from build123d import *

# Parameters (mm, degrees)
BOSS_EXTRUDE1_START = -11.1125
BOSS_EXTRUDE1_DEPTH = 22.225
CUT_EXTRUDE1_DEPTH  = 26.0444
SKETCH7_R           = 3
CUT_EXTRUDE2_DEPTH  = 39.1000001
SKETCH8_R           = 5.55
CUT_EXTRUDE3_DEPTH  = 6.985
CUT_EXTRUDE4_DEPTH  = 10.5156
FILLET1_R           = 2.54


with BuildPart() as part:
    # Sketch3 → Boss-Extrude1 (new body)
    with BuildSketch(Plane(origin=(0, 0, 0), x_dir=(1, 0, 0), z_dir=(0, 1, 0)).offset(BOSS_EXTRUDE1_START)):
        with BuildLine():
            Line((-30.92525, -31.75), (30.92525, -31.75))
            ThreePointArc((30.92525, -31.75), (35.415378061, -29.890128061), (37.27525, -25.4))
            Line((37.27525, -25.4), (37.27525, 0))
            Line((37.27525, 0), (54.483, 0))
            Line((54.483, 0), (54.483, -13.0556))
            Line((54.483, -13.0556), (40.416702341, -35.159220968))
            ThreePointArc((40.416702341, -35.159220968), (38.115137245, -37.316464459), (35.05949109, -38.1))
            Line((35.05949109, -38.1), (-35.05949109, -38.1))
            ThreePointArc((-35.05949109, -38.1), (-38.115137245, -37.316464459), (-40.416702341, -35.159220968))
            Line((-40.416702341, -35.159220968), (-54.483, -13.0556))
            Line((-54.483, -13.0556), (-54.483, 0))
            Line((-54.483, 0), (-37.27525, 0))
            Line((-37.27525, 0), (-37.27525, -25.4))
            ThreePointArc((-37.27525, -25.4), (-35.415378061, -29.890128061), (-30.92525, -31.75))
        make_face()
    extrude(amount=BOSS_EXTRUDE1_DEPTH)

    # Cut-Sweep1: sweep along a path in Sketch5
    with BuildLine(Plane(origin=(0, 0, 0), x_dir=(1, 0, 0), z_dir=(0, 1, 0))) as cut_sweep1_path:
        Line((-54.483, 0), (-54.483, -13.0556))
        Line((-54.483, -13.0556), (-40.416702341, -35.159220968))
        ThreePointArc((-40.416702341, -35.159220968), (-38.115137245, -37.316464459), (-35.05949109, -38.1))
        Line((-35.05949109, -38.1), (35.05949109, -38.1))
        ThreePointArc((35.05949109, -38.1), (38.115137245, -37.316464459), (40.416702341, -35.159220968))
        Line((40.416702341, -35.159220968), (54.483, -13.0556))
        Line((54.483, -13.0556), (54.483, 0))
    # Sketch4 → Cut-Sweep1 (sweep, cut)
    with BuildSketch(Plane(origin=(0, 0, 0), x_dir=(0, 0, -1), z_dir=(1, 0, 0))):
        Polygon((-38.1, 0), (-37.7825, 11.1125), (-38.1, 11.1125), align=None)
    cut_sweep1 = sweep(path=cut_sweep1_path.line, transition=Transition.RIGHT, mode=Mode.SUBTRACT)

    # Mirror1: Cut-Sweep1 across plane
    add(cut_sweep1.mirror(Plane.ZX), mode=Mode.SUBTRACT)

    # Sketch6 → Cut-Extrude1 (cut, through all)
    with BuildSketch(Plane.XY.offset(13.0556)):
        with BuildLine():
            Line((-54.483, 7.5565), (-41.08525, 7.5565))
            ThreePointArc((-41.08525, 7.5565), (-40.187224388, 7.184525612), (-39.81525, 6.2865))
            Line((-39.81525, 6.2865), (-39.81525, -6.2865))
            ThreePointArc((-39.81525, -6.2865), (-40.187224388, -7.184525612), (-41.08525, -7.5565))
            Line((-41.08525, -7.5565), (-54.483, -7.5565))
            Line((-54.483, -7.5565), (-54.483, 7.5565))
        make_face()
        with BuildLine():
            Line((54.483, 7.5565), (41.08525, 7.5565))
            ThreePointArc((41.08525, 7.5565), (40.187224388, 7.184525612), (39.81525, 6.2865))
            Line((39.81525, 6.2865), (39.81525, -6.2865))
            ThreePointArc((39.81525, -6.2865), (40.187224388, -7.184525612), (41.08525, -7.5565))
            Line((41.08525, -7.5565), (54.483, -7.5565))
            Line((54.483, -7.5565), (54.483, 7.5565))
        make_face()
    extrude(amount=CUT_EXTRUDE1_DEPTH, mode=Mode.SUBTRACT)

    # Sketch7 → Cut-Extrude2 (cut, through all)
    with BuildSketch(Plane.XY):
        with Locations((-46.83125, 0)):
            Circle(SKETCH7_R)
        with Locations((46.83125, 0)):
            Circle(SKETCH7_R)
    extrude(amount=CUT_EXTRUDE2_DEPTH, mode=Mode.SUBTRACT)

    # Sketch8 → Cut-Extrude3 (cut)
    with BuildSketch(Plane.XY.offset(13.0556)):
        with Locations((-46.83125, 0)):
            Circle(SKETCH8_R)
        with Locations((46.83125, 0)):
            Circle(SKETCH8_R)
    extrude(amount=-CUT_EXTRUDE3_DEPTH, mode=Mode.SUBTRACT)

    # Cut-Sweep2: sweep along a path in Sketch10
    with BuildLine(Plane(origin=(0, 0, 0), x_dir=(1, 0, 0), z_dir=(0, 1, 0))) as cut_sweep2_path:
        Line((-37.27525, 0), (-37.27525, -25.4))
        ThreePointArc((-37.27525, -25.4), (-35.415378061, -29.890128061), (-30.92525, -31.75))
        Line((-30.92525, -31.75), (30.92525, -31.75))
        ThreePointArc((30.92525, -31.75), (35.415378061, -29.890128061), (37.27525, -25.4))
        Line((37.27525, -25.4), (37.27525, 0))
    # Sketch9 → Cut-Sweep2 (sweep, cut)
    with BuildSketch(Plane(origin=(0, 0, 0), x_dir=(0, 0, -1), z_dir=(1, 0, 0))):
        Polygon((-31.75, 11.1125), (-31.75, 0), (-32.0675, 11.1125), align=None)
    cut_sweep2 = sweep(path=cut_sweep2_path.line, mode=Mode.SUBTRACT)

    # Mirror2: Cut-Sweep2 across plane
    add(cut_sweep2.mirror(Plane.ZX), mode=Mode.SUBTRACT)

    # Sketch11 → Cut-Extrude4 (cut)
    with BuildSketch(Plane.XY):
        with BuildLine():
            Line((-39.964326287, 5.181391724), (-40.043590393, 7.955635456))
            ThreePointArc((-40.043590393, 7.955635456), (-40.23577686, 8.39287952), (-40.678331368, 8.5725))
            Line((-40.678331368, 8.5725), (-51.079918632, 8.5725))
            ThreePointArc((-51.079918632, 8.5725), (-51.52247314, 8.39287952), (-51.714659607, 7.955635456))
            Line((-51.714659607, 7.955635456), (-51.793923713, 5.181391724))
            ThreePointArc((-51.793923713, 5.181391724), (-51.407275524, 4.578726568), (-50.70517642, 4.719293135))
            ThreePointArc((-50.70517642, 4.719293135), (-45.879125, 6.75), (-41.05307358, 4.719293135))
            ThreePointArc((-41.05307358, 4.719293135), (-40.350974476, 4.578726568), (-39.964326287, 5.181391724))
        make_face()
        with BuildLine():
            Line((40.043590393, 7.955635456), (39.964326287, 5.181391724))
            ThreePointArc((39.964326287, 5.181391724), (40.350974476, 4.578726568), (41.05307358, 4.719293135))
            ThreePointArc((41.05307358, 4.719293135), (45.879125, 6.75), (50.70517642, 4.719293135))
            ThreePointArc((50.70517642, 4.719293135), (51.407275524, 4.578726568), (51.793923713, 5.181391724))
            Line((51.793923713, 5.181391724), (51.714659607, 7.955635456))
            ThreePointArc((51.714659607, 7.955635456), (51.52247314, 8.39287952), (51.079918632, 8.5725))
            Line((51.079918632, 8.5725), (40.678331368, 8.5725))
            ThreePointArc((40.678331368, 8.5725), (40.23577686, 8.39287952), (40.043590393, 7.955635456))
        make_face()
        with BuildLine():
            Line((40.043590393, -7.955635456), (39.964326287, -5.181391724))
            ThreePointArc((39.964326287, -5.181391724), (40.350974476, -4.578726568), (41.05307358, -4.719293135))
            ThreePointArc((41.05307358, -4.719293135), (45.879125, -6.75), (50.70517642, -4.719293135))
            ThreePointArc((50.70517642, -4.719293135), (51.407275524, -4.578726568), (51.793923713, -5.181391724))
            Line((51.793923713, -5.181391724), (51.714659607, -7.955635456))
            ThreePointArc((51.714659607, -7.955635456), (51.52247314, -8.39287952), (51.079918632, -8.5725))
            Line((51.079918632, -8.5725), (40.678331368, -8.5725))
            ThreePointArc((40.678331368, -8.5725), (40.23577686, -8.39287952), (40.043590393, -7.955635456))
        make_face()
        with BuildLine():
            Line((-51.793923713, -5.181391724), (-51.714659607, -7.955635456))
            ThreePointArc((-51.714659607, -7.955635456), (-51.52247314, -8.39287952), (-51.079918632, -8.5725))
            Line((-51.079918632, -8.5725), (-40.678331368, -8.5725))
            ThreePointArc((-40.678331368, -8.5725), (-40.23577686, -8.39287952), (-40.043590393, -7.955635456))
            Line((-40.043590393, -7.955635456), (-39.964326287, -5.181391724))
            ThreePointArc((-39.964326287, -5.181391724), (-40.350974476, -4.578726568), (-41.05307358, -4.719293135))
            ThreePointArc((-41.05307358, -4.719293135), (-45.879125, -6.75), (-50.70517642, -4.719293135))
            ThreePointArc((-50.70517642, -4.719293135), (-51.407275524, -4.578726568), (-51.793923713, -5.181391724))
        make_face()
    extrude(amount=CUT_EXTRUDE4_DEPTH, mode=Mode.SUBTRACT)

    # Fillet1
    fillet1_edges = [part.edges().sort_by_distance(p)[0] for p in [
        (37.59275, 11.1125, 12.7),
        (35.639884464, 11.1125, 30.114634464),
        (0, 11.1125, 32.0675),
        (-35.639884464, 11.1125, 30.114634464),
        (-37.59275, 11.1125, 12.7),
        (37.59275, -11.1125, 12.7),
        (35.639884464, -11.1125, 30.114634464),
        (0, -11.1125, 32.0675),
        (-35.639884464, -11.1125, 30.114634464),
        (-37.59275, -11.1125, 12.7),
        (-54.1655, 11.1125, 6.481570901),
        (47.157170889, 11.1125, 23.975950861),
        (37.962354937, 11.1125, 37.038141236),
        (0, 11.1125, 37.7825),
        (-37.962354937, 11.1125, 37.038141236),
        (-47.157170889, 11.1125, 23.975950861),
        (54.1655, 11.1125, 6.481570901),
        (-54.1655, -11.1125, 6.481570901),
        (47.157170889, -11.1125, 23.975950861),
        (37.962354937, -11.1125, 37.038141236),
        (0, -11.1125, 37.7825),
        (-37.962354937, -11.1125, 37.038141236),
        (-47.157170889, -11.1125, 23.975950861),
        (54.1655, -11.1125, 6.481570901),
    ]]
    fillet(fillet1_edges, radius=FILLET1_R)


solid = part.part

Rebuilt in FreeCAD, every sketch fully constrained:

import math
import FreeCAD as App
import Part
import Sketcher
from FreeCAD import Vector
Q = App.Units.Quantity


def edges_at(feature, points):
    """Names of the edges that pass closest to the given points."""
    edges = feature.Shape.Edges
    near = lambda p: min(range(len(edges)), key=lambda i: edges[i].distToShape(Part.Vertex(*p))[0])
    return sorted({f"Edge{near(p) + 1}" for p in points})


def add_polygon(sketch, points):
    """Adds a closed chain of lines whose ends are joined by coincident constraints."""
    first, n = sketch.GeometryCount, len(points)
    for a, b in zip(points, points[1:] + points[:1]):
        sketch.addGeometry(Part.LineSegment(App.Vector(*a, 0), App.Vector(*b, 0)), False)
    for i in range(n):
        sketch.addConstraint(Sketcher.Constraint("Coincident", first + i, 2, first + (i + 1) % n, 1))

doc = App.newDocument("Part")
params = doc.addObject("Spreadsheet::Sheet", "Params")
for row, (alias, value) in enumerate([
    ("sketch1_height", "1 in"),
    ("sketch1_radius", "0.25 in"),
    ("sketch1_height2", "0.514 in"),
    ("pad1_length", "0.875 in"),
    ("sketch2_width", "0.4375 in"),
    ("sketch3_radius", "0.25 in"),
    ("sketch3_height", "0.514 in"),
    ("sketch4_radius", "0.05 in"),
    ("sketch4_height", "0.595 in"),
    ("pocket3_length", "0.275 in"),
    ("sketch7_width", "0.4375 in"),
    ("sketch8_height", "1 in"),
    ("sketch8_radius", "0.25 in"),
    ("sketch9_radius", "0.025 in"),
    ("pocket4_length", "0.414 in"),
    ("fillet_radius", "0.1 in"),
], start=1):
    params.set(f"A{row}", alias)
    params.set(f"B{row}", "=" + value)
    params.setAlias(f"B{row}", alias)

body = doc.addObject("PartDesign::Body", "Body")

# Sketch on XZ plane
sketch1 = body.newObject("Sketcher::SketchObject", "Sketch")
sketch1.AttachmentSupport = (doc.getObject("XZ_Plane"), [""])
sketch1.MapMode = "FlatFace"
sketch1.AttachmentOffset = App.Placement(Vector(0, 0, 0.4375 * 25.4), App.Rotation())
sketch1.addGeometry([
    Part.LineSegment(Vector(31, 32, 0), Vector(-31, 32, 0)),  # 0
    Part.ArcOfCircle(Part.Circle(Vector(-31, 25, 0), Vector(0, 0, 1), 6), math.radians(90), math.radians(180)),  # 1
    Part.LineSegment(Vector(-37, 25, 0), Vector(-37, 0, 0)),  # 2
    Part.LineSegment(Vector(-37, 0, 0), Vector(-54, 0, 0)),  # 3
    Part.LineSegment(Vector(-54, 0, 0), Vector(-54, 13, 0)),  # 4
    Part.LineSegment(Vector(-54, 13, 0), Vector(-40, 35, 0)),  # 5
    Part.ArcOfCircle(Part.Circle(Vector(-35, 32, 0), Vector(0, 0, 1), 6), math.radians(90), math.radians(148)),  # 6
    Part.LineSegment(Vector(-35, 38, 0), Vector(35, 38, 0)),  # 7
    Part.ArcOfCircle(Part.Circle(Vector(35, 32, 0), Vector(0, 0, 1), 6), math.radians(32), math.radians(90)),  # 8
    Part.LineSegment(Vector(40, 35, 0), Vector(54, 13, 0)),  # 9
    Part.LineSegment(Vector(54, 13, 0), Vector(54, 0, 0)),  # 10
    Part.LineSegment(Vector(54, 0, 0), Vector(37, 0, 0)),  # 11
    Part.LineSegment(Vector(37, 0, 0), Vector(37, 25, 0)),  # 12
    Part.ArcOfCircle(Part.Circle(Vector(31, 25, 0), Vector(0, 0, 1), 6), math.radians(0), math.radians(90)),  # 13
], False)
sketch1.addConstraint([
    Sketcher.Constraint("Tangent", 0, 2, 1, 1),
    Sketcher.Constraint("Tangent", 1, 2, 2, 1),
    Sketcher.Constraint("Coincident", 2, 2, 3, 1),
    Sketcher.Constraint("Coincident", 3, 2, 4, 1),
    Sketcher.Constraint("Coincident", 4, 2, 5, 1),
    Sketcher.Constraint("Tangent", 5, 2, 6, 2),
    Sketcher.Constraint("Tangent", 6, 1, 7, 1),
    Sketcher.Constraint("Tangent", 7, 2, 8, 2),
    Sketcher.Constraint("Tangent", 8, 1, 9, 1),
    Sketcher.Constraint("Coincident", 9, 2, 10, 1),
    Sketcher.Constraint("Coincident", 10, 2, 11, 1),
    Sketcher.Constraint("Coincident", 11, 2, 12, 1),
    Sketcher.Constraint("Tangent", 12, 2, 13, 1),
    Sketcher.Constraint("Tangent", 13, 2, 0, 1),
    Sketcher.Constraint("Horizontal", 0),
    Sketcher.Constraint("Vertical", 2),
    Sketcher.Constraint("Horizontal", 3),
    Sketcher.Constraint("Vertical", 4),
    Sketcher.Constraint("Horizontal", 7),
    Sketcher.Constraint("Vertical", 10),
    Sketcher.Constraint("Horizontal", 11),
    Sketcher.Constraint("Vertical", 12),
    Sketcher.Constraint("Equal", 1, 6),
    Sketcher.Constraint("Equal", 6, 8),
    Sketcher.Constraint("Equal", 8, 13),
    Sketcher.Constraint("Symmetric", 3, 2, 10, 2, -1, 1),
    Sketcher.Constraint("Symmetric", 5, 2, 8, 1, -2),
    Sketcher.Constraint("Symmetric", 2, 2, 11, 2, -2),
    Sketcher.Constraint("Horizontal", 8, 3, 0, 2),
    Sketcher.Constraint("DistanceY", 2, 2, 2, 1, Q("1 in")),
    Sketcher.Constraint("Radius", 1, Q("0.25 in")),
    Sketcher.Constraint("DistanceY", 4, 1, 4, 2, Q("0.514 in")),
    Sketcher.Constraint("DistanceX", 3, 2, -1, 1, Q("2.145 in")),
    Sketcher.Constraint("DistanceX", 0, 2, 0, 1, Q("61.8505 mm")),
    Sketcher.Constraint("DistanceX", 7, 1, 7, 2, Q("70.118982 mm")),
])
sketch1.setExpression("Constraints[29]", "Params.sketch1_height")
sketch1.setExpression("Constraints[30]", "Params.sketch1_radius")
sketch1.setExpression("Constraints[31]", "Params.sketch1_height2")
pad1 = body.newObject("PartDesign::Pad", "Pad")
pad1.Profile = sketch1
pad1.setExpression("Length", "Params.pad1_length")
pad1.Reversed = True

# Sketch on YZ plane
sketch2 = body.newObject("Sketcher::SketchObject", "Sketch001")
sketch2.AttachmentSupport = (doc.getObject("YZ_Plane"), [""])
sketch2.MapMode = "FlatFace"
add_polygon(sketch2, [(0, 38.1), (11.11, 37.78), (11.11, 38.1)])  # lines 0-2
sketch2.addConstraint([
    Sketcher.Constraint("Vertical", 1),
    Sketcher.Constraint("Horizontal", 2),
    Sketcher.Constraint("PointOnObject", 2, 2, -2),
    Sketcher.Constraint("DistanceY", -1, 1, 1, 2, Q("1.5 in")),
    Sketcher.Constraint("DistanceX", 2, 2, 2, 1, Q("0.4375 in")),
    Sketcher.Constraint("DistanceY", 1, 1, 1, 2, Q("0.0125 in")),
])
sketch2.setExpression("Constraints[7]", "Params.sketch2_width")

# Sketch on XZ plane
sketch3 = body.newObject("Sketcher::SketchObject", "Sketch002")
sketch3.AttachmentSupport = (doc.getObject("XZ_Plane"), [""])
sketch3.MapMode = "FlatFace"
sketch3.addGeometry([
    Part.LineSegment(Vector(-54, 0, 0), Vector(-54, 13, 0)),  # 0
    Part.LineSegment(Vector(-54, 13, 0), Vector(-40, 35, 0)),  # 1
    Part.ArcOfCircle(Part.Circle(Vector(-35, 32, 0), Vector(0, 0, 1), 6), math.radians(90), math.radians(148)),  # 2
    Part.LineSegment(Vector(-35, 38, 0), Vector(35, 38, 0)),  # 3
    Part.ArcOfCircle(Part.Circle(Vector(35, 32, 0), Vector(0, 0, 1), 6), math.radians(32), math.radians(90)),  # 4
    Part.LineSegment(Vector(40, 35, 0), Vector(54, 13, 0)),  # 5
    Part.LineSegment(Vector(54, 13, 0), Vector(54, 0, 0)),  # 6
], False)
sketch3.addConstraint([
    Sketcher.Constraint("Coincident", 0, 2, 1, 1),
    Sketcher.Constraint("Tangent", 1, 2, 2, 2),
    Sketcher.Constraint("Tangent", 2, 1, 3, 1),
    Sketcher.Constraint("Tangent", 3, 2, 4, 2),
    Sketcher.Constraint("Tangent", 4, 1, 5, 1),
    Sketcher.Constraint("Coincident", 5, 2, 6, 1),
    Sketcher.Constraint("Vertical", 0),
    Sketcher.Constraint("Horizontal", 3),
    Sketcher.Constraint("Vertical", 6),
    Sketcher.Constraint("Equal", 2, 4),
    Sketcher.Constraint("Symmetric", 0, 1, 6, 2, -1, 1),
    Sketcher.Constraint("Symmetric", 1, 2, 4, 1, -2),
    Sketcher.Constraint("PointOnObject", 0, 1, -1),
    Sketcher.Constraint("Radius", 2, Q("0.25 in")),
    Sketcher.Constraint("DistanceY", -1, 1, 2, 1, Q("1.5 in")),
    Sketcher.Constraint("DistanceY", 0, 1, 0, 2, Q("0.514 in")),
    Sketcher.Constraint("DistanceX", 0, 1, -1, 1, Q("2.145 in")),
    Sketcher.Constraint("DistanceX", 3, 1, 3, 2, Q("70.118982 mm")),
])
sketch3.setExpression("Constraints[13]", "Params.sketch3_radius")
sketch3.setExpression("Constraints[15]", "Params.sketch3_height")
doc.recompute()

subtractivepipe = body.newObject("PartDesign::SubtractivePipe", "SubtractivePipe")
subtractivepipe.Profile = sketch2
subtractivepipe.Spine = (sketch3, ["Edge1", "Edge2", "Edge3", "Edge4", "Edge5", "Edge6", "Edge7"])
subtractivepipe.Transition = "Right corner"
doc.recompute()

mirrored = body.newObject("PartDesign::Mirrored", "Mirrored")
mirrored.Originals = [subtractivepipe]
mirrored.MirrorPlane = (doc.getObject("XZ_Plane"), [""])
body.Tip = mirrored

# Sketch on XY plane
sketch4 = body.newObject("Sketcher::SketchObject", "Sketch003")
sketch4.AttachmentSupport = (doc.getObject("XY_Plane"), [""])
sketch4.MapMode = "FlatFace"
sketch4.AttachmentOffset = App.Placement(Vector(0, 0, 0.514 * 25.4), App.Rotation())
sketch4.addGeometry([
    Part.LineSegment(Vector(-41.1, 7.6, 0), Vector(-54.5, 7.6, 0)),  # 0
    Part.LineSegment(Vector(-54.5, 7.6, 0), Vector(-54.5, -7.6, 0)),  # 1
    Part.LineSegment(Vector(-54.5, -7.6, 0), Vector(-41.1, -7.6, 0)),  # 2
    Part.ArcOfCircle(Part.Circle(Vector(-41.1, -6.3, 0), Vector(0, 0, 1), 1.3), math.radians(-90), math.radians(0)),  # 3
    Part.LineSegment(Vector(-39.8, -6.3, 0), Vector(-39.8, 6.3, 0)),  # 4
    Part.ArcOfCircle(Part.Circle(Vector(-41.1, 6.3, 0), Vector(0, 0, 1), 1.3), math.radians(0), math.radians(90)),  # 5
    Part.LineSegment(Vector(54.5, 7.6, 0), Vector(41.1, 7.6, 0)),  # 6
    Part.ArcOfCircle(Part.Circle(Vector(41.1, 6.3, 0), Vector(0, 0, 1), 1.3), math.radians(90), math.radians(180)),  # 7
    Part.LineSegment(Vector(39.8, 6.3, 0), Vector(39.8, -6.3, 0)),  # 8
    Part.ArcOfCircle(Part.Circle(Vector(41.1, -6.3, 0), Vector(0, 0, 1), 1.3), math.radians(180), math.radians(270)),  # 9
    Part.LineSegment(Vector(41.1, -7.6, 0), Vector(54.5, -7.6, 0)),  # 10
    Part.LineSegment(Vector(54.5, -7.6, 0), Vector(54.5, 7.6, 0)),  # 11
], False)
sketch4.addConstraint([
    Sketcher.Constraint("Coincident", 0, 2, 1, 1),
    Sketcher.Constraint("Coincident", 1, 2, 2, 1),
    Sketcher.Constraint("Tangent", 2, 2, 3, 1),
    Sketcher.Constraint("Tangent", 3, 2, 4, 1),
    Sketcher.Constraint("Tangent", 4, 2, 5, 1),
    Sketcher.Constraint("Tangent", 5, 2, 0, 1),
    Sketcher.Constraint("Tangent", 6, 2, 7, 1),
    Sketcher.Constraint("Tangent", 7, 2, 8, 1),
    Sketcher.Constraint("Tangent", 8, 2, 9, 1),
    Sketcher.Constraint("Tangent", 9, 2, 10, 1),
    Sketcher.Constraint("Coincident", 10, 2, 11, 1),
    Sketcher.Constraint("Coincident", 11, 2, 6, 1),
    Sketcher.Constraint("Horizontal", 0),
    Sketcher.Constraint("Vertical", 1),
    Sketcher.Constraint("Horizontal", 2),
    Sketcher.Constraint("Vertical", 4),
    Sketcher.Constraint("Horizontal", 6),
    Sketcher.Constraint("Vertical", 8),
    Sketcher.Constraint("Horizontal", 10),
    Sketcher.Constraint("Vertical", 11),
    Sketcher.Constraint("Equal", 3, 5),
    Sketcher.Constraint("Equal", 5, 7),
    Sketcher.Constraint("Equal", 7, 9),
    Sketcher.Constraint("Symmetric", 3, 3, 7, 3, -1, 1),
    Sketcher.Constraint("Symmetric", 0, 2, 10, 2, -1, 1),
    Sketcher.Constraint("Horizontal", 5, 3, 7, 3),
    Sketcher.Constraint("Radius", 3, Q("0.05 in")),
    Sketcher.Constraint("DistanceY", 1, 2, 1, 1, Q("0.595 in")),
    Sketcher.Constraint("DistanceX", 0, 2, -1, 1, Q("2.145 in")),
    Sketcher.Constraint("DistanceX", 0, 2, 0, 1, Q("13.39775 mm")),
])
sketch4.setExpression("Constraints[26]", "Params.sketch4_radius")
sketch4.setExpression("Constraints[27]", "Params.sketch4_height")
pocket1 = body.newObject("PartDesign::Pocket", "Pocket")
pocket1.Profile = sketch4
pocket1.Type = "ThroughAll"
pocket1.Reversed = True

# Sketch on XY plane
sketch5 = body.newObject("Sketcher::SketchObject", "Sketch004")
sketch5.AttachmentSupport = (doc.getObject("XY_Plane"), [""])
sketch5.MapMode = "FlatFace"
sketch5.addGeometry([
    Part.Circle(Vector(-46.8, 0, 0), Vector(0, 0, 1), 3),
    Part.Circle(Vector(46.8, 0, 0), Vector(0, 0, 1), 3),
], False)
sketch5.addConstraint([
    Sketcher.Constraint("Equal", 0, 1),
    Sketcher.Constraint("Symmetric", 0, 3, 1, 3, -1, 1),
    Sketcher.Constraint("PointOnObject", 0, 3, -1),
    Sketcher.Constraint("Diameter", 0, Q("6 mm")),
    Sketcher.Constraint("DistanceX", 0, 3, -1, 1, Q("1.84375 in")),
])
pocket2 = body.newObject("PartDesign::Pocket", "Pocket001")
pocket2.Profile = sketch5
pocket2.Type = "ThroughAll"
pocket2.Reversed = True

# Sketch on XY plane
sketch6 = body.newObject("Sketcher::SketchObject", "Sketch005")
sketch6.AttachmentSupport = (doc.getObject("XY_Plane"), [""])
sketch6.MapMode = "FlatFace"
sketch6.AttachmentOffset = App.Placement(Vector(0, 0, 0.514 * 25.4), App.Rotation())
sketch6.addGeometry([
    Part.Circle(Vector(-47, 0, 0), Vector(0, 0, 1), 6),
    Part.Circle(Vector(47, 0, 0), Vector(0, 0, 1), 6),
], False)
sketch6.addConstraint([
    Sketcher.Constraint("Equal", 0, 1),
    Sketcher.Constraint("Symmetric", 0, 3, 1, 3, -1, 1),
    Sketcher.Constraint("PointOnObject", 0, 3, -1),
    Sketcher.Constraint("Diameter", 0, Q("11.1 mm")),
    Sketcher.Constraint("DistanceX", 0, 3, -1, 1, Q("1.84375 in")),
])
pocket3 = body.newObject("PartDesign::Pocket", "Pocket002")
pocket3.Profile = sketch6
pocket3.setExpression("Length", "Params.pocket3_length")

# Sketch on YZ plane
sketch7 = body.newObject("Sketcher::SketchObject", "Sketch006")
sketch7.AttachmentSupport = (doc.getObject("YZ_Plane"), [""])
sketch7.MapMode = "FlatFace"
add_polygon(sketch7, [(0, 31.75), (11.11, 31.75), (11.11, 32.07)])  # lines 0-2
sketch7.addConstraint([
    Sketcher.Constraint("Horizontal", 0),
    Sketcher.Constraint("Vertical", 1),
    Sketcher.Constraint("PointOnObject", 2, 2, -2),
    Sketcher.Constraint("DistanceX", 0, 1, 0, 2, Q("0.4375 in")),
    Sketcher.Constraint("DistanceY", -1, 1, 0, 2, Q("1.25 in")),
    Sketcher.Constraint("DistanceY", 1, 1, 1, 2, Q("0.0125 in")),
])
sketch7.setExpression("Constraints[6]", "Params.sketch7_width")

# Sketch on XZ plane
sketch8 = body.newObject("Sketcher::SketchObject", "Sketch007")
sketch8.AttachmentSupport = (doc.getObject("XZ_Plane"), [""])
sketch8.MapMode = "FlatFace"
sketch8.addGeometry([
    Part.LineSegment(Vector(-37, 0, 0), Vector(-37, 25, 0)),  # 0
    Part.ArcOfCircle(Part.Circle(Vector(-31, 25, 0), Vector(0, 0, 1), 6), math.radians(90), math.radians(180)),  # 1
    Part.LineSegment(Vector(-31, 32, 0), Vector(31, 32, 0)),  # 2
    Part.ArcOfCircle(Part.Circle(Vector(31, 25, 0), Vector(0, 0, 1), 6), math.radians(0), math.radians(90)),  # 3
    Part.LineSegment(Vector(37, 25, 0), Vector(37, 0, 0)),  # 4
], False)
sketch8.addConstraint([
    Sketcher.Constraint("Tangent", 0, 2, 1, 2),
    Sketcher.Constraint("Tangent", 1, 1, 2, 1),
    Sketcher.Constraint("Tangent", 2, 2, 3, 2),
    Sketcher.Constraint("Tangent", 3, 1, 4, 1),
    Sketcher.Constraint("Vertical", 0),
    Sketcher.Constraint("Horizontal", 2),
    Sketcher.Constraint("Vertical", 4),
    Sketcher.Constraint("Equal", 1, 3),
    Sketcher.Constraint("Symmetric", 0, 1, 4, 2, -1, 1),
    Sketcher.Constraint("PointOnObject", 0, 1, -1),
    Sketcher.Constraint("DistanceY", 0, 1, 0, 2, Q("1 in")),
    Sketcher.Constraint("Radius", 1, Q("0.25 in")),
    Sketcher.Constraint("DistanceX", 2, 1, 2, 2, Q("61.8505 mm")),
])
sketch8.setExpression("Constraints[10]", "Params.sketch8_height")
sketch8.setExpression("Constraints[11]", "Params.sketch8_radius")
doc.recompute()

subtractivepipe2 = body.newObject("PartDesign::SubtractivePipe", "SubtractivePipe001")
subtractivepipe2.Profile = sketch7
subtractivepipe2.Spine = (sketch8, ["Edge1", "Edge2", "Edge3", "Edge4", "Edge5"])
doc.recompute()

mirrored2 = body.newObject("PartDesign::Mirrored", "Mirrored001")
mirrored2.Originals = [subtractivepipe2]
mirrored2.MirrorPlane = (doc.getObject("XZ_Plane"), [""])
body.Tip = mirrored2

# Sketch on XY plane
sketch9 = body.newObject("Sketcher::SketchObject", "Sketch008")
sketch9.AttachmentSupport = (doc.getObject("XY_Plane"), [""])
sketch9.MapMode = "FlatFace"
sketch9.addGeometry([
    Part.LineSegment(Vector(-40, 5.2, 0), Vector(-40, 8, 0)),  # 0
    Part.ArcOfCircle(Part.Circle(Vector(-40.7, 7.9, 0), Vector(0, 0, 1), 0.6), math.radians(2), math.radians(90)),  # 1
    Part.LineSegment(Vector(-40.7, 8.6, 0), Vector(-51.1, 8.6, 0)),  # 2
    Part.ArcOfCircle(Part.Circle(Vector(-51.1, 7.9, 0), Vector(0, 0, 1), 0.6), math.radians(90), math.radians(178)),  # 3
    Part.LineSegment(Vector(-51.7, 8, 0), Vector(-51.8, 5.2, 0)),  # 4
    Part.ArcOfCircle(Part.Circle(Vector(-51.2, 5.2, 0), Vector(0, 0, 1), 0.6), math.radians(178), math.radians(316)),  # 5
    Part.ArcOfCircle(Part.Circle(Vector(-45.9, 0, 0), Vector(0, 0, 1), 6.8), math.radians(44), math.radians(136)),  # 6
    Part.ArcOfCircle(Part.Circle(Vector(-40.6, 5.2, 0), Vector(0, 0, 1), 0.6), math.radians(-136), math.radians(2)),  # 7
    Part.LineSegment(Vector(40, 8, 0), Vector(40, 5.2, 0)),  # 8
    Part.ArcOfCircle(Part.Circle(Vector(40.6, 5.2, 0), Vector(0, 0, 1), 0.6), math.radians(178), math.radians(316)),  # 9
    Part.ArcOfCircle(Part.Circle(Vector(45.9, 0, 0), Vector(0, 0, 1), 6.8), math.radians(44), math.radians(136)),  # 10
    Part.ArcOfCircle(Part.Circle(Vector(51.2, 5.2, 0), Vector(0, 0, 1), 0.6), math.radians(-136), math.radians(2)),  # 11
    Part.LineSegment(Vector(51.8, 5.2, 0), Vector(51.7, 8, 0)),  # 12
    Part.ArcOfCircle(Part.Circle(Vector(51.1, 7.9, 0), Vector(0, 0, 1), 0.6), math.radians(2), math.radians(90)),  # 13
    Part.LineSegment(Vector(51.1, 8.6, 0), Vector(40.7, 8.6, 0)),  # 14
    Part.ArcOfCircle(Part.Circle(Vector(40.7, 7.9, 0), Vector(0, 0, 1), 0.6), math.radians(90), math.radians(178)),  # 15
    Part.LineSegment(Vector(40, -5.2, 0), Vector(40, -8, 0)),  # 16
    Part.ArcOfCircle(Part.Circle(Vector(40.7, -7.9, 0), Vector(0, 0, 1), 0.6), math.radians(-178), math.radians(-90)),  # 17
    Part.LineSegment(Vector(40.7, -8.6, 0), Vector(51.1, -8.6, 0)),  # 18
    Part.ArcOfCircle(Part.Circle(Vector(51.1, -7.9, 0), Vector(0, 0, 1), 0.6), math.radians(-90), math.radians(-2)),  # 19
    Part.LineSegment(Vector(51.7, -8, 0), Vector(51.8, -5.2, 0)),  # 20
    Part.ArcOfCircle(Part.Circle(Vector(51.2, -5.2, 0), Vector(0, 0, 1), 0.6), math.radians(-2), math.radians(136)),  # 21
    Part.ArcOfCircle(Part.Circle(Vector(45.9, 0, 0), Vector(0, 0, 1), 6.8), math.radians(-136), math.radians(-44)),  # 22
    Part.ArcOfCircle(Part.Circle(Vector(40.6, -5.2, 0), Vector(0, 0, 1), 0.6), math.radians(44), math.radians(182)),  # 23
    Part.LineSegment(Vector(-51.8, -5.2, 0), Vector(-51.7, -8, 0)),  # 24
    Part.ArcOfCircle(Part.Circle(Vector(-51.1, -7.9, 0), Vector(0, 0, 1), 0.6), math.radians(-178), math.radians(-90)),  # 25
    Part.LineSegment(Vector(-51.1, -8.6, 0), Vector(-40.7, -8.6, 0)),  # 26
    Part.ArcOfCircle(Part.Circle(Vector(-40.7, -7.9, 0), Vector(0, 0, 1), 0.6), math.radians(-90), math.radians(-2)),  # 27
    Part.LineSegment(Vector(-40, -8, 0), Vector(-40, -5.2, 0)),  # 28
    Part.ArcOfCircle(Part.Circle(Vector(-40.6, -5.2, 0), Vector(0, 0, 1), 0.6), math.radians(-2), math.radians(136)),  # 29
    Part.ArcOfCircle(Part.Circle(Vector(-45.9, 0, 0), Vector(0, 0, 1), 6.8), math.radians(-136), math.radians(-44)),  # 30
    Part.ArcOfCircle(Part.Circle(Vector(-51.2, -5.2, 0), Vector(0, 0, 1), 0.6), math.radians(44), math.radians(182)),  # 31
], False)
sketch9.addConstraint([
    Sketcher.Constraint("Tangent", 0, 2, 1, 1),
    Sketcher.Constraint("Tangent", 1, 2, 2, 1),
    Sketcher.Constraint("Tangent", 2, 2, 3, 1),
    Sketcher.Constraint("Tangent", 3, 2, 4, 1),
    Sketcher.Constraint("Tangent", 4, 2, 5, 1),
    Sketcher.Constraint("Tangent", 5, 2, 6, 2),
    Sketcher.Constraint("Tangent", 6, 1, 7, 1),
    Sketcher.Constraint("Tangent", 7, 2, 0, 1),
    Sketcher.Constraint("Tangent", 8, 2, 9, 1),
    Sketcher.Constraint("Tangent", 9, 2, 10, 2),
    Sketcher.Constraint("Tangent", 10, 1, 11, 1),
    Sketcher.Constraint("Tangent", 11, 2, 12, 1),
    Sketcher.Constraint("Tangent", 12, 2, 13, 1),
    Sketcher.Constraint("Tangent", 13, 2, 14, 1),
    Sketcher.Constraint("Tangent", 14, 2, 15, 1),
    Sketcher.Constraint("Tangent", 15, 2, 8, 1),
    Sketcher.Constraint("Tangent", 16, 2, 17, 1),
    Sketcher.Constraint("Tangent", 17, 2, 18, 1),
    Sketcher.Constraint("Tangent", 18, 2, 19, 1),
    Sketcher.Constraint("Tangent", 19, 2, 20, 1),
    Sketcher.Constraint("Tangent", 20, 2, 21, 1),
    Sketcher.Constraint("Tangent", 21, 2, 22, 2),
    Sketcher.Constraint("Tangent", 22, 1, 23, 1),
    Sketcher.Constraint("Tangent", 23, 2, 16, 1),
    Sketcher.Constraint("Tangent", 24, 2, 25, 1),
    Sketcher.Constraint("Tangent", 25, 2, 26, 1),
    Sketcher.Constraint("Tangent", 26, 2, 27, 1),
    Sketcher.Constraint("Tangent", 27, 2, 28, 1),
    Sketcher.Constraint("Tangent", 28, 2, 29, 1),
    Sketcher.Constraint("Tangent", 29, 2, 30, 2),
    Sketcher.Constraint("Tangent", 30, 1, 31, 1),
    Sketcher.Constraint("Tangent", 31, 2, 24, 1),
    Sketcher.Constraint("Horizontal", 2),
    Sketcher.Constraint("Horizontal", 14),
    Sketcher.Constraint("Horizontal", 18),
    Sketcher.Constraint("Horizontal", 26),
    Sketcher.Constraint("Coincident", 22, 3, 10, 3),
    Sketcher.Constraint("Coincident", 30, 3, 6, 3),
    Sketcher.Constraint("Equal", 1, 3),
    Sketcher.Constraint("Equal", 3, 5),
    Sketcher.Constraint("Equal", 5, 7),
    Sketcher.Constraint("Equal", 7, 9),
    Sketcher.Constraint("Equal", 6, 10),
    Sketcher.Constraint("Equal", 9, 11),
    Sketcher.Constraint("Equal", 11, 13),
    Sketcher.Constraint("Equal", 13, 15),
    Sketcher.Constraint("Equal", 15, 17),
    Sketcher.Constraint("Equal", 17, 19),
    Sketcher.Constraint("Equal", 19, 21),
    Sketcher.Constraint("Equal", 10, 22),
    Sketcher.Constraint("Equal", 21, 23),
    Sketcher.Constraint("Equal", 23, 25),
    Sketcher.Constraint("Equal", 25, 27),
    Sketcher.Constraint("Equal", 27, 29),
    Sketcher.Constraint("Equal", 22, 30),
    Sketcher.Constraint("Equal", 29, 31),
    Sketcher.Constraint("Symmetric", 6, 3, 10, 3, -1, 1),
    Sketcher.Constraint("Symmetric", 1, 3, 17, 3, -1, 1),
    Sketcher.Constraint("Symmetric", 13, 3, 25, 3, -1, 1),
    Sketcher.Constraint("Symmetric", 3, 2, 19, 2, -1, 1),
    Sketcher.Constraint("Symmetric", 15, 2, 27, 2, -1, 1),
    Sketcher.Constraint("Symmetric", 7, 3, 9, 3, -2),
    Sketcher.Constraint("Symmetric", 3, 3, 13, 3, -2),
    Sketcher.Constraint("Symmetric", 16, 2, 27, 2, -2),
    Sketcher.Constraint("Parallel", 4, 8),
    Sketcher.Constraint("Parallel", 0, 12),
    Sketcher.Constraint("Parallel", 16, 24),
    Sketcher.Constraint("Horizontal", 5, 3, 7, 3),
    Sketcher.Constraint("Radius", 1, Q("0.025 in")),
    Sketcher.Constraint("Radius", 6, Q("6.75 mm")),
    Sketcher.Constraint("DistanceY", -1, 1, 1, 3, Q("0.3125 in")),
    Sketcher.Constraint("DistanceX", 1, 3, 9, 3, Q("81.277399 mm")),
    Sketcher.Constraint("DistanceX", 4, 2, 30, 3, Q("5.914799 mm")),
    Sketcher.Constraint("DistanceY", 5, 2, 4, 2, Q("0.462099 mm")),
])
sketch9.setExpression("Constraints[68]", "Params.sketch9_radius")
pocket4 = body.newObject("PartDesign::Pocket", "Pocket003")
pocket4.Profile = sketch9
pocket4.setExpression("Length", "Params.pocket4_length")
pocket4.Reversed = True
doc.recompute()

fillet = body.newObject("PartDesign::Fillet", "Fillet")
fillet.Base = (pocket4, edges_at(pocket4, [
    (37.593, 11.113, 12.7),
    (35.64, 11.113, 30.115),
    (0, 11.113, 32.068),
    (-35.64, 11.113, 30.115),
    (-37.593, 11.113, 12.7),
    (37.593, -11.113, 12.7),
    (35.64, -11.113, 30.115),
    (0, -11.113, 32.068),
    (-35.64, -11.113, 30.115),
    (-37.593, -11.113, 12.7),
    (-54.166, 11.113, 6.482),
    (47.157, 11.113, 23.976),
    (37.962, 11.113, 37.038),
    (0, 11.113, 37.782),
    (-37.962, 11.113, 37.038),
    (-47.157, 11.113, 23.976),
    (54.166, 11.113, 6.482),
    (-54.166, -11.113, 6.482),
    (47.157, -11.113, 23.976),
    (37.962, -11.113, 37.038),
    (0, -11.113, 37.782),
    (-37.962, -11.113, 37.038),
    (-47.157, -11.113, 23.976),
    (54.166, -11.113, 6.482),
]))
fillet.setExpression("Radius", "Params.fillet_radius")

doc.recompute()
